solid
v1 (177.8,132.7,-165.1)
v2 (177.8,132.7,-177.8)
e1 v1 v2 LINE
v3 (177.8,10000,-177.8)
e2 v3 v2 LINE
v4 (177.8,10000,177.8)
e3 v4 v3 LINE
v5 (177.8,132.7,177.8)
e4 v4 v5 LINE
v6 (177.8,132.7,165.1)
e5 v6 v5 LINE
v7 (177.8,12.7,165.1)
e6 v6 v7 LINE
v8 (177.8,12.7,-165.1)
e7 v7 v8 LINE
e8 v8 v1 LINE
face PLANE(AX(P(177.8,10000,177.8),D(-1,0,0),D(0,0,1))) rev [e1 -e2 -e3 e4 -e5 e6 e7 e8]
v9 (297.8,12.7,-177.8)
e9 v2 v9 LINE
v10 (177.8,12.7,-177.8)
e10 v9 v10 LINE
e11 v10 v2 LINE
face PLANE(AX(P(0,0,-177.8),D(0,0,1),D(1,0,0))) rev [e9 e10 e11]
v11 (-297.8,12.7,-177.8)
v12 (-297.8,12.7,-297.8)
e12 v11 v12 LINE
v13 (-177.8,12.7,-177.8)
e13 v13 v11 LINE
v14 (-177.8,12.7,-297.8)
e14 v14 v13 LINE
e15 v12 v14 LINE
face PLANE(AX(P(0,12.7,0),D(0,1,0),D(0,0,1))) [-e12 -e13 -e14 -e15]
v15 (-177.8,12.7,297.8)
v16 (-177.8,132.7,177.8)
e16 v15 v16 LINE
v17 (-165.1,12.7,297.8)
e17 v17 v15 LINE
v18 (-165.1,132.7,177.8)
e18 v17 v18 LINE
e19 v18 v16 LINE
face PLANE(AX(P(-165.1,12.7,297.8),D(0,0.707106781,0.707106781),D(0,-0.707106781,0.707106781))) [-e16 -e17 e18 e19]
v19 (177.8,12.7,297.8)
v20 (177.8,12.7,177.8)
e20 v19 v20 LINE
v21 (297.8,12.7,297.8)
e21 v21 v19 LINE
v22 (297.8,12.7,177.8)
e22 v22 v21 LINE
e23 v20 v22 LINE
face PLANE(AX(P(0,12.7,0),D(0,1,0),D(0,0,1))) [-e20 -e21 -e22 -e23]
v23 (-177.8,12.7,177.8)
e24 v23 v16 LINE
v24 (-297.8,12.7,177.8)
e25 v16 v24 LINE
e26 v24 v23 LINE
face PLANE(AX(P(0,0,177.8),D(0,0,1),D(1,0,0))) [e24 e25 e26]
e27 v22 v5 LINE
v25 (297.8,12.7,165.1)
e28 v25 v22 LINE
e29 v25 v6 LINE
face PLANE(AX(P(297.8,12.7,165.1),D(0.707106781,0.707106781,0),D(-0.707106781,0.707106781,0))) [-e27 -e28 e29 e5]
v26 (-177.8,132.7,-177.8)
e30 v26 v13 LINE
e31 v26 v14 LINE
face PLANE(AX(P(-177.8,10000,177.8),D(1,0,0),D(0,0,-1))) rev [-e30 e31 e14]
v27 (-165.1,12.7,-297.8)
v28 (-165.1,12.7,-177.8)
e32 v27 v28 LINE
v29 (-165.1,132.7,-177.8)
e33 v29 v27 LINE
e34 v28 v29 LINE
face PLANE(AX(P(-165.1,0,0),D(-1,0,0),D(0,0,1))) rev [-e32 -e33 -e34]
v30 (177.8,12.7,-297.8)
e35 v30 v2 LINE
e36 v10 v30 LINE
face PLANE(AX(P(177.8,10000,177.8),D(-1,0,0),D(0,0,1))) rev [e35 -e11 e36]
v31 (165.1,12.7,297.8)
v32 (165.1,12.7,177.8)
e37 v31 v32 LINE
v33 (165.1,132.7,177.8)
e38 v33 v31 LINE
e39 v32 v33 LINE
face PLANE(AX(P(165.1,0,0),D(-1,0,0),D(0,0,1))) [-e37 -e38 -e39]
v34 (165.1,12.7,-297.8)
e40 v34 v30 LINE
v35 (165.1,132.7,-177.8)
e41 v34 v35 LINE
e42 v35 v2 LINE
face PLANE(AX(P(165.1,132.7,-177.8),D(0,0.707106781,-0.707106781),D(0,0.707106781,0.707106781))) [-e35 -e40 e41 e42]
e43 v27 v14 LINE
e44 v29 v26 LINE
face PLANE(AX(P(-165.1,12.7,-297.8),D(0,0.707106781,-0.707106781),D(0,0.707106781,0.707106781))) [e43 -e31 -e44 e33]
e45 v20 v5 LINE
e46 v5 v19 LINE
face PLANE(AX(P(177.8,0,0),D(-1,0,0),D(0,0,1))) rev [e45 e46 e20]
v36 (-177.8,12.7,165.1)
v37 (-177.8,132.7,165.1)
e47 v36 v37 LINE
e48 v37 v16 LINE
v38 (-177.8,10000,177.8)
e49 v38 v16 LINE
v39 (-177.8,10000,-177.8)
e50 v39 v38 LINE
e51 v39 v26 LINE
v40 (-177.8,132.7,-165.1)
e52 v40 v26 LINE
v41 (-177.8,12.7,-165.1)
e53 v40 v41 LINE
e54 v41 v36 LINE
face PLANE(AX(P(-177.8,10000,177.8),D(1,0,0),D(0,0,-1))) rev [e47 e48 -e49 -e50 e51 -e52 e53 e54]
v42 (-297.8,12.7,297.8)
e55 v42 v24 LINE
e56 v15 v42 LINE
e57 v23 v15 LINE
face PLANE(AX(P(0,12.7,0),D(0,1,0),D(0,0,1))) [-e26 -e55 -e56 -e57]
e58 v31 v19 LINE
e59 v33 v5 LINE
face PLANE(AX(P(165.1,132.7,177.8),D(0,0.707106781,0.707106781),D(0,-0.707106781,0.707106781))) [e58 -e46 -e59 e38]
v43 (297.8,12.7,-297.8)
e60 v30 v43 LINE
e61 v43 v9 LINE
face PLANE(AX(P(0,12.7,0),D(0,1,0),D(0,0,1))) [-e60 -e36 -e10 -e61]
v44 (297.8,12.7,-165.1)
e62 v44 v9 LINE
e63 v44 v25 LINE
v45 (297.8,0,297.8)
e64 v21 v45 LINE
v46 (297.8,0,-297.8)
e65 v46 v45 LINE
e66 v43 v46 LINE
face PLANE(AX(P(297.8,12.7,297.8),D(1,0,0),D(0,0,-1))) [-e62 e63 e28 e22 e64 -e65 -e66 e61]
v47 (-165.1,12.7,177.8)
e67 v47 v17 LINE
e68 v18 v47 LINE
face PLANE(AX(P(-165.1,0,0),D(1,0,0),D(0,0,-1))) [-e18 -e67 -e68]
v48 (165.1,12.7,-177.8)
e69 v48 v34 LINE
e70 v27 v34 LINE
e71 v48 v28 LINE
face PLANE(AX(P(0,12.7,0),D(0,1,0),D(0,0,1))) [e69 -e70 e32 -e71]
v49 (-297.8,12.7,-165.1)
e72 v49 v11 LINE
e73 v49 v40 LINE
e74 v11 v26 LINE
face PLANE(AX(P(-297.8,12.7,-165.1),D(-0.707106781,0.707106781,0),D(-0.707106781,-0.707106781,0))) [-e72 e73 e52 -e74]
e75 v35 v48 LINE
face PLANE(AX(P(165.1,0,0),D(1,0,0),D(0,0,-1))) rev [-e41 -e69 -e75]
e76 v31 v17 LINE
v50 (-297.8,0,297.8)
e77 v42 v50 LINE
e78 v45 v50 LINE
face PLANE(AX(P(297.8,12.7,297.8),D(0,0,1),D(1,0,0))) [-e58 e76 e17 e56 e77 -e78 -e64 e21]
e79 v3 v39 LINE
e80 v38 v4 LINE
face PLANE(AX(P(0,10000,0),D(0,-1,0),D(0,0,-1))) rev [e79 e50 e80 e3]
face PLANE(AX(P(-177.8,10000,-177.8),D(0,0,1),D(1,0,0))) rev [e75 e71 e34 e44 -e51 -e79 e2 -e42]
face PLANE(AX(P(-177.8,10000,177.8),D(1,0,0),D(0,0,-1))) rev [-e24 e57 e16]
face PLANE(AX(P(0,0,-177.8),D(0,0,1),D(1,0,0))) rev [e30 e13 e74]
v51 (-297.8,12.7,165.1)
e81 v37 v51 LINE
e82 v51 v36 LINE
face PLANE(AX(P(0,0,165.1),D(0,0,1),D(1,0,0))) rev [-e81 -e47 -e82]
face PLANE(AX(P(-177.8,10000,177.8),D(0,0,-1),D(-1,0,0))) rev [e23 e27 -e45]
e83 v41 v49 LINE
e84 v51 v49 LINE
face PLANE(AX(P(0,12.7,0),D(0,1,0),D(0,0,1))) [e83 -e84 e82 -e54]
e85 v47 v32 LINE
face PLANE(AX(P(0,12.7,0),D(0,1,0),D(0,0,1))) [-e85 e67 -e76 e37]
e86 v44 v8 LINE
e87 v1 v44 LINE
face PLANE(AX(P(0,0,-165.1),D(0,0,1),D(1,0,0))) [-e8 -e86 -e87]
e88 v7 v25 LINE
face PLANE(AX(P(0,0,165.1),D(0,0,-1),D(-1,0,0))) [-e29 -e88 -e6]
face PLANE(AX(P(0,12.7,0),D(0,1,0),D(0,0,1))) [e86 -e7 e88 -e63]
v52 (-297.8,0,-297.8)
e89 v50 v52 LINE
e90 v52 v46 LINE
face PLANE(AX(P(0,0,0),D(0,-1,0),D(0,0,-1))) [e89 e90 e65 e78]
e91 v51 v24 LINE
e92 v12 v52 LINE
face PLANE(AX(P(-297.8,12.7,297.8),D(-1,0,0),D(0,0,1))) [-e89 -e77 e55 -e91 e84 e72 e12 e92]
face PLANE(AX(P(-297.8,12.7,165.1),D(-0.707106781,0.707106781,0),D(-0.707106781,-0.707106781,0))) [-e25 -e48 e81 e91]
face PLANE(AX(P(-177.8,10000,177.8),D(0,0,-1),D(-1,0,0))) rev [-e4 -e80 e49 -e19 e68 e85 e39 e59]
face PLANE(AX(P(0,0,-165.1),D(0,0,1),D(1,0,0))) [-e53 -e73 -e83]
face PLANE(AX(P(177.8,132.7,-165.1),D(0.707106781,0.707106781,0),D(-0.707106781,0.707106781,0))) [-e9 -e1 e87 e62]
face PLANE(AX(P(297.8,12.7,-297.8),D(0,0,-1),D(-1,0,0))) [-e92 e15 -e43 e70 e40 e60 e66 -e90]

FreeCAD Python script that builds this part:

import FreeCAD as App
import Part
import Sketcher

doc = App.newDocument("Part")
body = doc.addObject("PartDesign::Body", "Body")

# Sketch on XZ plane
sketch1 = doc.addObject("Sketcher::SketchObject", "Sketch")
body.addObject(sketch1)
sketch1.AttachmentSupport = (doc.XZ_Plane, [""])
sketch1.MapMode = "FlatFace"
sketch1.addGeometry([
    Part.LineSegment(App.Vector(-178, -178, 0), App.Vector(-178, 178, 0)),
    Part.LineSegment(App.Vector(-178, 178, 0), App.Vector(178, 178, 0)),
    Part.LineSegment(App.Vector(178, 178, 0), App.Vector(178, -178, 0)),
    Part.LineSegment(App.Vector(178, -178, 0), App.Vector(-178, -178, 0)),
], False)
sketch1.addConstraint([
    Sketcher.Constraint("Coincident", 0, 2, 1, 1),
    Sketcher.Constraint("Coincident", 1, 2, 2, 1),
    Sketcher.Constraint("Coincident", 2, 2, 3, 1),
    Sketcher.Constraint("Coincident", 3, 2, 0, 1),
    Sketcher.Constraint("Vertical", 0),
    Sketcher.Constraint("Horizontal", 1),
    Sketcher.Constraint("Vertical", 2),
    Sketcher.Constraint("Horizontal", 3),
    Sketcher.Constraint("Symmetric", 0, 2, 2, 2, -1, 1),
    Sketcher.Constraint("Equal", 3, 0),
    Sketcher.Constraint("DistanceX", 1, 1, 1, 2, 355.6),
])
pad1 = doc.addObject("PartDesign::Pad", "Pad")
body.addObject(pad1)
pad1.Profile = sketch1
pad1.Length = 10000
pad1.Reversed = True

# Sketch on XZ plane
sketch2 = doc.addObject("Sketcher::SketchObject", "Sketch001")
body.addObject(sketch2)
sketch2.AttachmentSupport = (doc.XZ_Plane, [""])
sketch2.MapMode = "FlatFace"
sketch2.addGeometry([
    Part.LineSegment(App.Vector(-298, 298, 0), App.Vector(-298, -298, 0)),
    Part.LineSegment(App.Vector(-298, -298, 0), App.Vector(298, -298, 0)),
    Part.LineSegment(App.Vector(298, -298, 0), App.Vector(298, 298, 0)),
    Part.LineSegment(App.Vector(298, 298, 0), App.Vector(-298, 298, 0)),
], False)
sketch2.addConstraint([
    Sketcher.Constraint("Coincident", 0, 2, 1, 1),
    Sketcher.Constraint("Coincident", 1, 2, 2, 1),
    Sketcher.Constraint("Coincident", 2, 2, 3, 1),
    Sketcher.Constraint("Coincident", 3, 2, 0, 1),
    Sketcher.Constraint("Vertical", 0),
    Sketcher.Constraint("Horizontal", 1),
    Sketcher.Constraint("Vertical", 2),
    Sketcher.Constraint("Horizontal", 3),
    Sketcher.Constraint("Symmetric", 0, 2, 2, 2, -1, 1),
    Sketcher.Constraint("Equal", 3, 0),
    Sketcher.Constraint("DistanceX", 1, 1, 1, 2, 595.6),
])
pad2 = doc.addObject("PartDesign::Pad", "Pad001")
body.addObject(pad2)
pad2.Profile = sketch2
pad2.Length = 12.7
pad2.Reversed = True

# Sketch on YZ plane
sketch3 = doc.addObject("Sketcher::SketchObject", "Sketch002")
body.addObject(sketch3)
sketch3.AttachmentSupport = (doc.YZ_Plane, [""])
sketch3.MapMode = "FlatFace"
sketch3.AttachmentOffset = App.Placement(App.Vector(0, 0, -177.8), App.Rotation())
sketch3.addGeometry([
    Part.LineSegment(App.Vector(133, -178, 0), App.Vector(13, -298, 0)),
    Part.LineSegment(App.Vector(13, -298, 0), App.Vector(13, -178, 0)),
    Part.LineSegment(App.Vector(13, -178, 0), App.Vector(133, -178, 0)),
], False)
sketch3.addConstraint([
    Sketcher.Constraint("Coincident", 0, 2, 1, 1),
    Sketcher.Constraint("Coincident", 1, 2, 2, 1),
    Sketcher.Constraint("Coincident", 2, 2, 0, 1),
    Sketcher.Constraint("Vertical", 1),
    Sketcher.Constraint("Horizontal", 2),
    Sketcher.Constraint("Equal", 2, 1),
    Sketcher.Constraint("DistanceX", 2, 1, 2, 2, 120.0),
    Sketcher.Constraint("DistanceX", -1, 1, 0, 2, 12.7),
    Sketcher.Constraint("DistanceY", 0, 2, -1, 1, 297.8),
])
pad3 = doc.addObject("PartDesign::Pad", "Pad002")
body.addObject(pad3)
pad3.Profile = sketch3
pad3.Length = 12.7

# Sketch on YZ plane
sketch4 = doc.addObject("Sketcher::SketchObject", "Sketch003")
body.addObject(sketch4)
sketch4.AttachmentSupport = (doc.YZ_Plane, [""])
sketch4.MapMode = "FlatFace"
sketch4.AttachmentOffset = App.Placement(App.Vector(0, 0, 177.8), App.Rotation())
sketch4.addGeometry([
    Part.LineSegment(App.Vector(13, -298, 0), App.Vector(133, -178, 0)),
    Part.LineSegment(App.Vector(133, -178, 0), App.Vector(13, -178, 0)),
    Part.LineSegment(App.Vector(13, -178, 0), App.Vector(13, -298, 0)),
], False)
sketch4.addConstraint([
    Sketcher.Constraint("Coincident", 0, 2, 1, 1),
    Sketcher.Constraint("Coincident", 1, 2, 2, 1),
    Sketcher.Constraint("Coincident", 2, 2, 0, 1),
    Sketcher.Constraint("Horizontal", 1),
    Sketcher.Constraint("Vertical", 2),
    Sketcher.Constraint("Equal", 1, 2),
    Sketcher.Constraint("DistanceX", 1, 2, 1, 1, 120.0),
    Sketcher.Constraint("DistanceX", -1, 1, 0, 2, 132.7),
    Sketcher.Constraint("DistanceY", 0, 2, -1, 1, 177.8),
])
pad4 = doc.addObject("PartDesign::Pad", "Pad003")
body.addObject(pad4)
pad4.Profile = sketch4
pad4.Length = 12.7
pad4.Reversed = True

# Sketch on XY plane
sketch5 = doc.addObject("Sketcher::SketchObject", "Sketch004")
body.addObject(sketch5)
sketch5.AttachmentSupport = (doc.XY_Plane, [""])
sketch5.MapMode = "FlatFace"
sketch5.AttachmentOffset = App.Placement(App.Vector(0, 0, 177.8), App.Rotation())
sketch5.addGeometry([
    Part.LineSegment(App.Vector(298, 13, 0), App.Vector(178, 133, 0)),
    Part.LineSegment(App.Vector(178, 133, 0), App.Vector(178, 13, 0)),
    Part.LineSegment(App.Vector(178, 13, 0), App.Vector(298, 13, 0)),
], False)
sketch5.addConstraint([
    Sketcher.Constraint("Coincident", 0, 2, 1, 1),
    Sketcher.Constraint("Coincident", 1, 2, 2, 1),
    Sketcher.Constraint("Coincident", 2, 2, 0, 1),
    Sketcher.Constraint("Vertical", 1),
    Sketcher.Constraint("Horizontal", 2),
    Sketcher.Constraint("Equal", 2, 1),
    Sketcher.Constraint("DistanceX", 2, 1, 2, 2, 120.0),
    Sketcher.Constraint("DistanceX", -1, 1, 0, 2, 177.8),
    Sketcher.Constraint("DistanceY", -1, 1, 0, 2, 132.7),
])
pad5 = doc.addObject("PartDesign::Pad", "Pad004")
body.addObject(pad5)
pad5.Profile = sketch5
pad5.Length = 12.7
pad5.Reversed = True

# Sketch on XY plane
sketch6 = doc.addObject("Sketcher::SketchObject", "Sketch005")
body.addObject(sketch6)
sketch6.AttachmentSupport = (doc.XY_Plane, [""])
sketch6.MapMode = "FlatFace"
sketch6.AttachmentOffset = App.Placement(App.Vector(0, 0, -177.8), App.Rotation())
sketch6.addGeometry([
    Part.LineSegment(App.Vector(178, 133, 0), App.Vector(298, 13, 0)),
    Part.LineSegment(App.Vector(298, 13, 0), App.Vector(178, 13, 0)),
    Part.LineSegment(App.Vector(178, 13, 0), App.Vector(178, 133, 0)),
], False)
sketch6.addConstraint([
    Sketcher.Constraint("Coincident", 0, 2, 1, 1),
    Sketcher.Constraint("Coincident", 1, 2, 2, 1),
    Sketcher.Constraint("Coincident", 2, 2, 0, 1),
    Sketcher.Constraint("Horizontal", 1),
    Sketcher.Constraint("Vertical", 2),
    Sketcher.Constraint("Equal", 1, 2),
    Sketcher.Constraint("DistanceX", 1, 2, 1, 1, 120.0),
    Sketcher.Constraint("DistanceX", -1, 1, 0, 2, 297.8),
    Sketcher.Constraint("DistanceY", -1, 1, 0, 2, 12.7),
])
pad6 = doc.addObject("PartDesign::Pad", "Pad005")
body.addObject(pad6)
pad6.Profile = sketch6
pad6.Length = 12.7

# Sketch on YZ plane
sketch7 = doc.addObject("Sketcher::SketchObject", "Sketch006")
body.addObject(sketch7)
sketch7.AttachmentSupport = (doc.YZ_Plane, [""])
sketch7.MapMode = "FlatFace"
sketch7.AttachmentOffset = App.Placement(App.Vector(0, 0, -177.8), App.Rotation())
sketch7.addGeometry([
    Part.LineSegment(App.Vector(13, 298, 0), App.Vector(133, 178, 0)),
    Part.LineSegment(App.Vector(133, 178, 0), App.Vector(13, 178, 0)),
    Part.LineSegment(App.Vector(13, 178, 0), App.Vector(13, 298, 0)),
], False)
sketch7.addConstraint([
    Sketcher.Constraint("Coincident", 0, 2, 1, 1),
    Sketcher.Constraint("Coincident", 1, 2, 2, 1),
    Sketcher.Constraint("Coincident", 2, 2, 0, 1),
    Sketcher.Constraint("Horizontal", 1),
    Sketcher.Constraint("Vertical", 2),
    Sketcher.Constraint("Equal", 1, 2),
    Sketcher.Constraint("DistanceX", 1, 2, 1, 1, 120.0),
    Sketcher.Constraint("DistanceX", -1, 1, 0, 2, 132.7),
    Sketcher.Constraint("DistanceY", -1, 1, 0, 2, 177.8),
])
pad7 = doc.addObject("PartDesign::Pad", "Pad006")
body.addObject(pad7)
pad7.Profile = sketch7
pad7.Length = 12.7

# Sketch on YZ plane
sketch8 = doc.addObject("Sketcher::SketchObject", "Sketch007")
body.addObject(sketch8)
sketch8.AttachmentSupport = (doc.YZ_Plane, [""])
sketch8.MapMode = "FlatFace"
sketch8.AttachmentOffset = App.Placement(App.Vector(0, 0, 177.8), App.Rotation())
sketch8.addGeometry([
    Part.LineSegment(App.Vector(133, 178, 0), App.Vector(13, 298, 0)),
    Part.LineSegment(App.Vector(13, 298, 0), App.Vector(13, 178, 0)),
    Part.LineSegment(App.Vector(13, 178, 0), App.Vector(133, 178, 0)),
], False)
sketch8.addConstraint([
    Sketcher.Constraint("Coincident", 0, 2, 1, 1),
    Sketcher.Constraint("Coincident", 1, 2, 2, 1),
    Sketcher.Constraint("Coincident", 2, 2, 0, 1),
    Sketcher.Constraint("Vertical", 1),
    Sketcher.Constraint("Horizontal", 2),
    Sketcher.Constraint("Equal", 2, 1),
    Sketcher.Constraint("DistanceX", 2, 1, 2, 2, 120.0),
    Sketcher.Constraint("DistanceX", -1, 1, 0, 2, 12.7),
    Sketcher.Constraint("DistanceY", -1, 1, 0, 2, 297.8),
])
pad8 = doc.addObject("PartDesign::Pad", "Pad007")
body.addObject(pad8)
pad8.Profile = sketch8
pad8.Length = 12.7
pad8.Reversed = True

# Sketch on XY plane
sketch9 = doc.addObject("Sketcher::SketchObject", "Sketch008")
body.addObject(sketch9)
sketch9.AttachmentSupport = (doc.XY_Plane, [""])
sketch9.MapMode = "FlatFace"
sketch9.AttachmentOffset = App.Placement(App.Vector(0, 0, -177.8), App.Rotation())
sketch9.addGeometry([
    Part.LineSegment(App.Vector(-298, 13, 0), App.Vector(-178, 133, 0)),
    Part.LineSegment(App.Vector(-178, 133, 0), App.Vector(-178, 13, 0)),
    Part.LineSegment(App.Vector(-178, 13, 0), App.Vector(-298, 13, 0)),
], False)
sketch9.addConstraint([
    Sketcher.Constraint("Coincident", 0, 2, 1, 1),
    Sketcher.Constraint("Coincident", 1, 2, 2, 1),
    Sketcher.Constraint("Coincident", 2, 2, 0, 1),
    Sketcher.Constraint("Vertical", 1),
    Sketcher.Constraint("Horizontal", 2),
    Sketcher.Constraint("Equal", 2, 1),
    Sketcher.Constraint("DistanceX", 2, 2, 2, 1, 120.0),
    Sketcher.Constraint("DistanceX", 0, 2, -1, 1, 177.8),
    Sketcher.Constraint("DistanceY", -1, 1, 0, 2, 132.7),
])
pad9 = doc.addObject("PartDesign::Pad", "Pad008")
body.addObject(pad9)
pad9.Profile = sketch9
pad9.Length = 12.7

# Sketch on XY plane
sketch10 = doc.addObject("Sketcher::SketchObject", "Sketch009")
body.addObject(sketch10)
sketch10.AttachmentSupport = (doc.XY_Plane, [""])
sketch10.MapMode = "FlatFace"
sketch10.AttachmentOffset = App.Placement(App.Vector(0, 0, 177.8), App.Rotation())
sketch10.addGeometry([
    Part.LineSegment(App.Vector(-178, 133, 0), App.Vector(-298, 13, 0)),
    Part.LineSegment(App.Vector(-298, 13, 0), App.Vector(-178, 13, 0)),
    Part.LineSegment(App.Vector(-178, 13, 0), App.Vector(-178, 133, 0)),
], False)
sketch10.addConstraint([
    Sketcher.Constraint("Coincident", 0, 2, 1, 1),
    Sketcher.Constraint("Coincident", 1, 2, 2, 1),
    Sketcher.Constraint("Coincident", 2, 2, 0, 1),
    Sketcher.Constraint("Horizontal", 1),
    Sketcher.Constraint("Vertical", 2),
    Sketcher.Constraint("Equal", 1, 2),
    Sketcher.Constraint("DistanceX", 1, 1, 1, 2, 120.0),
    Sketcher.Constraint("DistanceX", 0, 2, -1, 1, 297.8),
    Sketcher.Constraint("DistanceY", -1, 1, 0, 2, 12.7),
])
pad10 = doc.addObject("PartDesign::Pad", "Pad009")
body.addObject(pad10)
pad10.Profile = sketch10
pad10.Length = 12.7
pad10.Reversed = True

doc.recompute()
